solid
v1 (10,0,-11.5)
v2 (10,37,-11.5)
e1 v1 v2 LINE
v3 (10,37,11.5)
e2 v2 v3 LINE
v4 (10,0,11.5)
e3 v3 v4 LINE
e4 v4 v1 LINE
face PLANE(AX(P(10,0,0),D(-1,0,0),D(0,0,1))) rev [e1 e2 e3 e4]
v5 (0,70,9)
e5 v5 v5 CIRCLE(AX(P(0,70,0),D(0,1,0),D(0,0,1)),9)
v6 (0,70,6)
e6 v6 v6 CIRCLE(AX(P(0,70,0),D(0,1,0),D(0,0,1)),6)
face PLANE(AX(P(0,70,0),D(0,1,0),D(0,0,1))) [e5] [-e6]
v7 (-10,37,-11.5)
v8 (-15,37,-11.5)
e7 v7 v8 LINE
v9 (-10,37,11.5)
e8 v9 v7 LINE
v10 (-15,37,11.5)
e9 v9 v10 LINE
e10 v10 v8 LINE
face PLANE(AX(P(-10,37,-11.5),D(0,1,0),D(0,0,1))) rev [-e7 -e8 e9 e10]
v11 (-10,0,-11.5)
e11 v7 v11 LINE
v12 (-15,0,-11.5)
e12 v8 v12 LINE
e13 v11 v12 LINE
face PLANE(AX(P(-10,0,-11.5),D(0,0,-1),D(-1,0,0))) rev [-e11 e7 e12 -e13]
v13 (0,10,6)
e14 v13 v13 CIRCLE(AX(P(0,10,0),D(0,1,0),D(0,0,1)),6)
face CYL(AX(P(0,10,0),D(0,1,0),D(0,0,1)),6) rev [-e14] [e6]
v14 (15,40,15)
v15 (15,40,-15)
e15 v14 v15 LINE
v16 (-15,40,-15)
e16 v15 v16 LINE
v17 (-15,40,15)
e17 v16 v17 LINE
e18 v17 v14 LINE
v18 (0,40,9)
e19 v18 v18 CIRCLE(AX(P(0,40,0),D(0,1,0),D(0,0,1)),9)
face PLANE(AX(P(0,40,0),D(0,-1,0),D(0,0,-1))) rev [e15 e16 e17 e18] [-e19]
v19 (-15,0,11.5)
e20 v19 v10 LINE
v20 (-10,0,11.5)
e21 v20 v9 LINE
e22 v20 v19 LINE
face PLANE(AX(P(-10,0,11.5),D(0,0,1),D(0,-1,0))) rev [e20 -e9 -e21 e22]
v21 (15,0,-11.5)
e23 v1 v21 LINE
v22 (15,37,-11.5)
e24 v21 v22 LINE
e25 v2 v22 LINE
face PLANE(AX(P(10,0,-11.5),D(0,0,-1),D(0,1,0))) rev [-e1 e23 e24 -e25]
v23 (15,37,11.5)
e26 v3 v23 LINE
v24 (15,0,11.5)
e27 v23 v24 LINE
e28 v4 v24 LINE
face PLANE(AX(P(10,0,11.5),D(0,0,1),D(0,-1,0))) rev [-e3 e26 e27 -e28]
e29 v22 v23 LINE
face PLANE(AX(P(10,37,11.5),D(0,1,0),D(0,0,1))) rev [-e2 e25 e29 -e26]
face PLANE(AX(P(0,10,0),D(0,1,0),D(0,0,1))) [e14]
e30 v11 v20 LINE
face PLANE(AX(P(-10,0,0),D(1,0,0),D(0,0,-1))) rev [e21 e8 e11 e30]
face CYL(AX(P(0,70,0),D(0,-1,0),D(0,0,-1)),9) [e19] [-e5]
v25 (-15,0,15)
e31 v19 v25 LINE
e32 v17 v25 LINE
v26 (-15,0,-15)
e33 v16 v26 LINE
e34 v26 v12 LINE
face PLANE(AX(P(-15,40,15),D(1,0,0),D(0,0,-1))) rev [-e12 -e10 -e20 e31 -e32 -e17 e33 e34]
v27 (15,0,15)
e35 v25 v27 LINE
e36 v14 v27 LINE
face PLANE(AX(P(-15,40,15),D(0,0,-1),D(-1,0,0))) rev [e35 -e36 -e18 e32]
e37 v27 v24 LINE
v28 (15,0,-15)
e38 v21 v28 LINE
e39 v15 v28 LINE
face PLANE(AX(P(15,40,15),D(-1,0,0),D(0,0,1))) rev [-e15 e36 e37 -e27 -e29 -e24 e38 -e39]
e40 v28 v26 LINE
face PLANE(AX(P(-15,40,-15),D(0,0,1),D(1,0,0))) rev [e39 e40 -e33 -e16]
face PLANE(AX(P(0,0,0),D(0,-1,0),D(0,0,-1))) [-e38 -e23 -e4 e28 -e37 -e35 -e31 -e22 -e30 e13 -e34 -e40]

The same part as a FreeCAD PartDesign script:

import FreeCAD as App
import Part
import Sketcher

V = App.Vector


def add_polygon(sketch, points):
    """Adds a closed chain of lines whose ends are joined by coincident constraints."""
    first, n = sketch.GeometryCount, len(points)
    for a, b in zip(points, points[1:] + points[:1]):
        sketch.addGeometry(Part.LineSegment(App.Vector(*a, 0), App.Vector(*b, 0)), False)
    for i in range(n):
        sketch.addConstraint(Sketcher.Constraint("Coincident", first + i, 2, first + (i + 1) % n, 1))

doc = App.newDocument("Part")
body = doc.addObject("PartDesign::Body", "Body")

sketch1 = doc.addObject("Sketcher::SketchObject", "Sketch")
body.addObject(sketch1)
sketch1.AttachmentSupport = (doc.XZ_Plane, [""])
sketch1.MapMode = "FlatFace"
add_polygon(sketch1, [(-15, -15), (-15, 15), (15, 15), (15, -15)])
sketch1.addConstraint([
    Sketcher.Constraint("Vertical", 0),
    Sketcher.Constraint("Horizontal", 1),
    Sketcher.Constraint("Vertical", 2),
    Sketcher.Constraint("Horizontal", 3),
    Sketcher.Constraint("Symmetric", 0, 2, 2, 2, -1, 1),
    Sketcher.Constraint("Equal", 3, 0),
    Sketcher.Constraint("DistanceX", 1, 1, 1, 2, 30.0),
])
pad1 = doc.addObject("PartDesign::Pad", "Pad")
body.addObject(pad1)
pad1.Profile = sketch1
pad1.Length = 40
pad1.Reversed = True

sketch2 = doc.addObject("Sketcher::SketchObject", "Sketch001")
body.addObject(sketch2)
sketch2.AttachmentSupport = (doc.XZ_Plane, [""])
sketch2.MapMode = "FlatFace"
sketch2.AttachmentOffset = App.Placement(V(0, 0, -40), App.Rotation())
sketch2.addGeometry(Part.Circle(V(0, 0, 0), V(0, 0, 1), 9), False)
sketch2.addConstraint([
    Sketcher.Constraint("Coincident", 0, 3, -1, 1),
    Sketcher.Constraint("Diameter", 0, 18.0),
])
pad2 = doc.addObject("PartDesign::Pad", "Pad001")
body.addObject(pad2)
pad2.Profile = sketch2
pad2.Length = 30
pad2.Reversed = True

sketch3 = doc.addObject("Sketcher::SketchObject", "Sketch002")
body.addObject(sketch3)
sketch3.AttachmentSupport = (doc.XZ_Plane, [""])
sketch3.MapMode = "FlatFace"
sketch3.AttachmentOffset = App.Placement(V(0, 0, -70), App.Rotation())
sketch3.addGeometry(Part.Circle(V(0, 0, 0), V(0, 0, 1), 6), False)
sketch3.addConstraint([
    Sketcher.Constraint("Coincident", 0, 3, -1, 1),
    Sketcher.Constraint("Diameter", 0, 12.0),
])
pocket1 = doc.addObject("PartDesign::Pocket", "Pocket")
body.addObject(pocket1)
pocket1.Profile = sketch3
pocket1.Length = 60
pocket1.Reversed = True

sketch4 = doc.addObject("Sketcher::SketchObject", "Sketch003")
body.addObject(sketch4)
sketch4.AttachmentSupport = (doc.YZ_Plane, [""])
sketch4.MapMode = "FlatFace"
sketch4.AttachmentOffset = App.Placement(V(0, 0, 15), App.Rotation())
add_polygon(sketch4, [(37, 11.5), (0, 11.5), (0, -11.5), (37, -11.5)])
sketch4.addConstraint([
    Sketcher.Constraint("Horizontal", 0),
    Sketcher.Constraint("Vertical", 1),
    Sketcher.Constraint("Horizontal", 2),
    Sketcher.Constraint("Vertical", 3),
    Sketcher.Constraint("Symmetric", 0, 2, 1, 2, -1, 1),
    Sketcher.Constraint("DistanceX", 0, 2, 0, 1, 37.0),
    Sketcher.Constraint("DistanceY", 1, 2, 1, 1, 23.0),
])
pocket2 = doc.addObject("PartDesign::Pocket", "Pocket001")
body.addObject(pocket2)
pocket2.Profile = sketch4
pocket2.Length = 5

sketch5 = doc.addObject("Sketcher::SketchObject", "Sketch004")
body.addObject(sketch5)
sketch5.AttachmentSupport = (doc.YZ_Plane, [""])
sketch5.MapMode = "FlatFace"
sketch5.AttachmentOffset = App.Placement(V(0, 0, -15), App.Rotation())
add_polygon(sketch5, [(37, -11.5), (0, -11.5), (0, 11.5), (37, 11.5)])
sketch5.addConstraint([
    Sketcher.Constraint("Horizontal", 0),
    Sketcher.Constraint("Vertical", 1),
    Sketcher.Constraint("Horizontal", 2),
    Sketcher.Constraint("Vertical", 3),
    Sketcher.Constraint("Symmetric", 0, 2, 1, 2, -1, 1),
    Sketcher.Constraint("DistanceX", 0, 2, 0, 1, 37.0),
    Sketcher.Constraint("DistanceY", 1, 1, 1, 2, 23.0),
])
pocket3 = doc.addObject("PartDesign::Pocket", "Pocket002")
body.addObject(pocket3)
pocket3.Profile = sketch5
pocket3.Length = 5
pocket3.Reversed = True

doc.recompute()
